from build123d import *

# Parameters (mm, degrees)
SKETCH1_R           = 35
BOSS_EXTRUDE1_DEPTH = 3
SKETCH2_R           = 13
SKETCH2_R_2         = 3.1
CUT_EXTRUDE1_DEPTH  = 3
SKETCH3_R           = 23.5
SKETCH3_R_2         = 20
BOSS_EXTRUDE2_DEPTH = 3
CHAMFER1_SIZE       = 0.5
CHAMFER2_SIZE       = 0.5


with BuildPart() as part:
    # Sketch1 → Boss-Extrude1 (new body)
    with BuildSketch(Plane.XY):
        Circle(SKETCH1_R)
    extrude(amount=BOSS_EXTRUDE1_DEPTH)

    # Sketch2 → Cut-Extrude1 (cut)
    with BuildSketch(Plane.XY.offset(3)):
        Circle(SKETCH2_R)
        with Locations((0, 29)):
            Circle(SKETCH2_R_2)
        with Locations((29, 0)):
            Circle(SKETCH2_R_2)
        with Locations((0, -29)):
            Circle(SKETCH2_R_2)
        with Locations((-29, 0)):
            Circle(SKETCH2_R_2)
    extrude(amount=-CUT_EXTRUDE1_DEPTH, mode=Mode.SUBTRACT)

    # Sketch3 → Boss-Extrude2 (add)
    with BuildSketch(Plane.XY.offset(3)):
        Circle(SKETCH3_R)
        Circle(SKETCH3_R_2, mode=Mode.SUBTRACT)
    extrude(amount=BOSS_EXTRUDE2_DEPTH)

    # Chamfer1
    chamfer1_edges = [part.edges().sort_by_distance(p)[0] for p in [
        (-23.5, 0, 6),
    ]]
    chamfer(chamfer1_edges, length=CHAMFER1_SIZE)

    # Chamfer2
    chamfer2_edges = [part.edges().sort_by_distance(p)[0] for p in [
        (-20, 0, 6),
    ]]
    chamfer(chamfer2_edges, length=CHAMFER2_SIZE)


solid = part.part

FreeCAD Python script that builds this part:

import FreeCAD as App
import Part
import Sketcher
from FreeCAD import Vector
Q = App.Units.Quantity


def edges_at(feature, points):
    """Names of the edges that pass closest to the given points."""
    edges = feature.Shape.Edges
    near = lambda p: min(range(len(edges)), key=lambda i: edges[i].distToShape(Part.Vertex(*p))[0])
    return sorted({f"Edge{near(p) + 1}" for p in points})

doc = App.newDocument("Part")
body = doc.addObject("PartDesign::Body", "Body")

# Sketch on XY plane
sketch1 = body.newObject("Sketcher::SketchObject", "Sketch")
sketch1.AttachmentSupport = (doc.getObject("XY_Plane"), [""])
sketch1.MapMode = "FlatFace"
sketch1.addGeometry(Part.Circle(Vector(0, 0, 0), Vector(0, 0, 1), 35), False)
sketch1.addConstraint([
    Sketcher.Constraint("Coincident", 0, 3, -1, 1),
    Sketcher.Constraint("Diameter", 0, Q("70 mm")),
])
pad1 = body.newObject("PartDesign::Pad", "Pad")
pad1.Profile = sketch1
pad1.Length = 3

# Sketch on XY plane
sketch2 = body.newObject("Sketcher::SketchObject", "Sketch001")
sketch2.AttachmentSupport = (doc.getObject("XY_Plane"), [""])
sketch2.MapMode = "FlatFace"
sketch2.AttachmentOffset = App.Placement(Vector(0, 0, 3), App.Rotation())
sketch2.addGeometry([
    Part.Circle(Vector(0, 0, 0), Vector(0, 0, 1), 13),  # 0
    Part.Circle(Vector(0, 29, 0), Vector(0, 0, 1), 3.1),  # 1
    Part.Circle(Vector(29, 0, 0), Vector(0, 0, 1), 3.1),  # 2
    Part.Circle(Vector(0, -29, 0), Vector(0, 0, 1), 3.1),  # 3
    Part.Circle(Vector(-29, 0, 0), Vector(0, 0, 1), 3.1),  # 4
], False)
sketch2.addConstraint([
    Sketcher.Constraint("Coincident", 0, 3, -1, 1),
    Sketcher.Constraint("Equal", 1, 2),
    Sketcher.Constraint("Equal", 2, 3),
    Sketcher.Constraint("Equal", 3, 4),
    Sketcher.Constraint("Symmetric", 1, 3, 3, 3, -1, 1),
    Sketcher.Constraint("Symmetric", 2, 3, 4, 3, -1, 1),
    Sketcher.Constraint("PointOnObject", 1, 3, -2),
    Sketcher.Constraint("PointOnObject", 2, 3, -1),
    Sketcher.Constraint("Diameter", 0, Q("26 mm")),
    Sketcher.Constraint("Diameter", 1, Q("6.2 mm")),
    Sketcher.Constraint("DistanceY", -1, 1, 1, 3, Q("29 mm")),
    Sketcher.Constraint("DistanceX", -1, 1, 2, 3, Q("29 mm")),
])
pocket1 = body.newObject("PartDesign::Pocket", "Pocket")
pocket1.Profile = sketch2
pocket1.Length = 3

# Sketch on XY plane
sketch3 = body.newObject("Sketcher::SketchObject", "Sketch002")
sketch3.AttachmentSupport = (doc.getObject("XY_Plane"), [""])
sketch3.MapMode = "FlatFace"
sketch3.AttachmentOffset = App.Placement(Vector(0, 0, 3), App.Rotation())
sketch3.addGeometry([
    Part.Circle(Vector(0, 0, 0), Vector(0, 0, 1), 24),
    Part.Circle(Vector(0, 0, 0), Vector(0, 0, 1), 20),
], False)
sketch3.addConstraint([
    Sketcher.Constraint("Coincident", 0, 3, -1, 1),
    Sketcher.Constraint("Coincident", 1, 3, -1, 1),
    Sketcher.Constraint("Diameter", 0, Q("47 mm")),
    Sketcher.Constraint("Diameter", 1, Q("40 mm")),
])
pad2 = body.newObject("PartDesign::Pad", "Pad001")
pad2.Profile = sketch3
pad2.Length = 3
doc.recompute()

chamfer = body.newObject("PartDesign::Chamfer", "Chamfer")
chamfer.Base = (pad2, edges_at(pad2, [(-23.5, 0, 6)]))
chamfer.Size = 0.5
doc.recompute()

chamfer2 = body.newObject("PartDesign::Chamfer", "Chamfer001")
chamfer2.Base = (chamfer, edges_at(chamfer, [(-20, 0, 6)]))
chamfer2.Size = 0.5

doc.recompute()
